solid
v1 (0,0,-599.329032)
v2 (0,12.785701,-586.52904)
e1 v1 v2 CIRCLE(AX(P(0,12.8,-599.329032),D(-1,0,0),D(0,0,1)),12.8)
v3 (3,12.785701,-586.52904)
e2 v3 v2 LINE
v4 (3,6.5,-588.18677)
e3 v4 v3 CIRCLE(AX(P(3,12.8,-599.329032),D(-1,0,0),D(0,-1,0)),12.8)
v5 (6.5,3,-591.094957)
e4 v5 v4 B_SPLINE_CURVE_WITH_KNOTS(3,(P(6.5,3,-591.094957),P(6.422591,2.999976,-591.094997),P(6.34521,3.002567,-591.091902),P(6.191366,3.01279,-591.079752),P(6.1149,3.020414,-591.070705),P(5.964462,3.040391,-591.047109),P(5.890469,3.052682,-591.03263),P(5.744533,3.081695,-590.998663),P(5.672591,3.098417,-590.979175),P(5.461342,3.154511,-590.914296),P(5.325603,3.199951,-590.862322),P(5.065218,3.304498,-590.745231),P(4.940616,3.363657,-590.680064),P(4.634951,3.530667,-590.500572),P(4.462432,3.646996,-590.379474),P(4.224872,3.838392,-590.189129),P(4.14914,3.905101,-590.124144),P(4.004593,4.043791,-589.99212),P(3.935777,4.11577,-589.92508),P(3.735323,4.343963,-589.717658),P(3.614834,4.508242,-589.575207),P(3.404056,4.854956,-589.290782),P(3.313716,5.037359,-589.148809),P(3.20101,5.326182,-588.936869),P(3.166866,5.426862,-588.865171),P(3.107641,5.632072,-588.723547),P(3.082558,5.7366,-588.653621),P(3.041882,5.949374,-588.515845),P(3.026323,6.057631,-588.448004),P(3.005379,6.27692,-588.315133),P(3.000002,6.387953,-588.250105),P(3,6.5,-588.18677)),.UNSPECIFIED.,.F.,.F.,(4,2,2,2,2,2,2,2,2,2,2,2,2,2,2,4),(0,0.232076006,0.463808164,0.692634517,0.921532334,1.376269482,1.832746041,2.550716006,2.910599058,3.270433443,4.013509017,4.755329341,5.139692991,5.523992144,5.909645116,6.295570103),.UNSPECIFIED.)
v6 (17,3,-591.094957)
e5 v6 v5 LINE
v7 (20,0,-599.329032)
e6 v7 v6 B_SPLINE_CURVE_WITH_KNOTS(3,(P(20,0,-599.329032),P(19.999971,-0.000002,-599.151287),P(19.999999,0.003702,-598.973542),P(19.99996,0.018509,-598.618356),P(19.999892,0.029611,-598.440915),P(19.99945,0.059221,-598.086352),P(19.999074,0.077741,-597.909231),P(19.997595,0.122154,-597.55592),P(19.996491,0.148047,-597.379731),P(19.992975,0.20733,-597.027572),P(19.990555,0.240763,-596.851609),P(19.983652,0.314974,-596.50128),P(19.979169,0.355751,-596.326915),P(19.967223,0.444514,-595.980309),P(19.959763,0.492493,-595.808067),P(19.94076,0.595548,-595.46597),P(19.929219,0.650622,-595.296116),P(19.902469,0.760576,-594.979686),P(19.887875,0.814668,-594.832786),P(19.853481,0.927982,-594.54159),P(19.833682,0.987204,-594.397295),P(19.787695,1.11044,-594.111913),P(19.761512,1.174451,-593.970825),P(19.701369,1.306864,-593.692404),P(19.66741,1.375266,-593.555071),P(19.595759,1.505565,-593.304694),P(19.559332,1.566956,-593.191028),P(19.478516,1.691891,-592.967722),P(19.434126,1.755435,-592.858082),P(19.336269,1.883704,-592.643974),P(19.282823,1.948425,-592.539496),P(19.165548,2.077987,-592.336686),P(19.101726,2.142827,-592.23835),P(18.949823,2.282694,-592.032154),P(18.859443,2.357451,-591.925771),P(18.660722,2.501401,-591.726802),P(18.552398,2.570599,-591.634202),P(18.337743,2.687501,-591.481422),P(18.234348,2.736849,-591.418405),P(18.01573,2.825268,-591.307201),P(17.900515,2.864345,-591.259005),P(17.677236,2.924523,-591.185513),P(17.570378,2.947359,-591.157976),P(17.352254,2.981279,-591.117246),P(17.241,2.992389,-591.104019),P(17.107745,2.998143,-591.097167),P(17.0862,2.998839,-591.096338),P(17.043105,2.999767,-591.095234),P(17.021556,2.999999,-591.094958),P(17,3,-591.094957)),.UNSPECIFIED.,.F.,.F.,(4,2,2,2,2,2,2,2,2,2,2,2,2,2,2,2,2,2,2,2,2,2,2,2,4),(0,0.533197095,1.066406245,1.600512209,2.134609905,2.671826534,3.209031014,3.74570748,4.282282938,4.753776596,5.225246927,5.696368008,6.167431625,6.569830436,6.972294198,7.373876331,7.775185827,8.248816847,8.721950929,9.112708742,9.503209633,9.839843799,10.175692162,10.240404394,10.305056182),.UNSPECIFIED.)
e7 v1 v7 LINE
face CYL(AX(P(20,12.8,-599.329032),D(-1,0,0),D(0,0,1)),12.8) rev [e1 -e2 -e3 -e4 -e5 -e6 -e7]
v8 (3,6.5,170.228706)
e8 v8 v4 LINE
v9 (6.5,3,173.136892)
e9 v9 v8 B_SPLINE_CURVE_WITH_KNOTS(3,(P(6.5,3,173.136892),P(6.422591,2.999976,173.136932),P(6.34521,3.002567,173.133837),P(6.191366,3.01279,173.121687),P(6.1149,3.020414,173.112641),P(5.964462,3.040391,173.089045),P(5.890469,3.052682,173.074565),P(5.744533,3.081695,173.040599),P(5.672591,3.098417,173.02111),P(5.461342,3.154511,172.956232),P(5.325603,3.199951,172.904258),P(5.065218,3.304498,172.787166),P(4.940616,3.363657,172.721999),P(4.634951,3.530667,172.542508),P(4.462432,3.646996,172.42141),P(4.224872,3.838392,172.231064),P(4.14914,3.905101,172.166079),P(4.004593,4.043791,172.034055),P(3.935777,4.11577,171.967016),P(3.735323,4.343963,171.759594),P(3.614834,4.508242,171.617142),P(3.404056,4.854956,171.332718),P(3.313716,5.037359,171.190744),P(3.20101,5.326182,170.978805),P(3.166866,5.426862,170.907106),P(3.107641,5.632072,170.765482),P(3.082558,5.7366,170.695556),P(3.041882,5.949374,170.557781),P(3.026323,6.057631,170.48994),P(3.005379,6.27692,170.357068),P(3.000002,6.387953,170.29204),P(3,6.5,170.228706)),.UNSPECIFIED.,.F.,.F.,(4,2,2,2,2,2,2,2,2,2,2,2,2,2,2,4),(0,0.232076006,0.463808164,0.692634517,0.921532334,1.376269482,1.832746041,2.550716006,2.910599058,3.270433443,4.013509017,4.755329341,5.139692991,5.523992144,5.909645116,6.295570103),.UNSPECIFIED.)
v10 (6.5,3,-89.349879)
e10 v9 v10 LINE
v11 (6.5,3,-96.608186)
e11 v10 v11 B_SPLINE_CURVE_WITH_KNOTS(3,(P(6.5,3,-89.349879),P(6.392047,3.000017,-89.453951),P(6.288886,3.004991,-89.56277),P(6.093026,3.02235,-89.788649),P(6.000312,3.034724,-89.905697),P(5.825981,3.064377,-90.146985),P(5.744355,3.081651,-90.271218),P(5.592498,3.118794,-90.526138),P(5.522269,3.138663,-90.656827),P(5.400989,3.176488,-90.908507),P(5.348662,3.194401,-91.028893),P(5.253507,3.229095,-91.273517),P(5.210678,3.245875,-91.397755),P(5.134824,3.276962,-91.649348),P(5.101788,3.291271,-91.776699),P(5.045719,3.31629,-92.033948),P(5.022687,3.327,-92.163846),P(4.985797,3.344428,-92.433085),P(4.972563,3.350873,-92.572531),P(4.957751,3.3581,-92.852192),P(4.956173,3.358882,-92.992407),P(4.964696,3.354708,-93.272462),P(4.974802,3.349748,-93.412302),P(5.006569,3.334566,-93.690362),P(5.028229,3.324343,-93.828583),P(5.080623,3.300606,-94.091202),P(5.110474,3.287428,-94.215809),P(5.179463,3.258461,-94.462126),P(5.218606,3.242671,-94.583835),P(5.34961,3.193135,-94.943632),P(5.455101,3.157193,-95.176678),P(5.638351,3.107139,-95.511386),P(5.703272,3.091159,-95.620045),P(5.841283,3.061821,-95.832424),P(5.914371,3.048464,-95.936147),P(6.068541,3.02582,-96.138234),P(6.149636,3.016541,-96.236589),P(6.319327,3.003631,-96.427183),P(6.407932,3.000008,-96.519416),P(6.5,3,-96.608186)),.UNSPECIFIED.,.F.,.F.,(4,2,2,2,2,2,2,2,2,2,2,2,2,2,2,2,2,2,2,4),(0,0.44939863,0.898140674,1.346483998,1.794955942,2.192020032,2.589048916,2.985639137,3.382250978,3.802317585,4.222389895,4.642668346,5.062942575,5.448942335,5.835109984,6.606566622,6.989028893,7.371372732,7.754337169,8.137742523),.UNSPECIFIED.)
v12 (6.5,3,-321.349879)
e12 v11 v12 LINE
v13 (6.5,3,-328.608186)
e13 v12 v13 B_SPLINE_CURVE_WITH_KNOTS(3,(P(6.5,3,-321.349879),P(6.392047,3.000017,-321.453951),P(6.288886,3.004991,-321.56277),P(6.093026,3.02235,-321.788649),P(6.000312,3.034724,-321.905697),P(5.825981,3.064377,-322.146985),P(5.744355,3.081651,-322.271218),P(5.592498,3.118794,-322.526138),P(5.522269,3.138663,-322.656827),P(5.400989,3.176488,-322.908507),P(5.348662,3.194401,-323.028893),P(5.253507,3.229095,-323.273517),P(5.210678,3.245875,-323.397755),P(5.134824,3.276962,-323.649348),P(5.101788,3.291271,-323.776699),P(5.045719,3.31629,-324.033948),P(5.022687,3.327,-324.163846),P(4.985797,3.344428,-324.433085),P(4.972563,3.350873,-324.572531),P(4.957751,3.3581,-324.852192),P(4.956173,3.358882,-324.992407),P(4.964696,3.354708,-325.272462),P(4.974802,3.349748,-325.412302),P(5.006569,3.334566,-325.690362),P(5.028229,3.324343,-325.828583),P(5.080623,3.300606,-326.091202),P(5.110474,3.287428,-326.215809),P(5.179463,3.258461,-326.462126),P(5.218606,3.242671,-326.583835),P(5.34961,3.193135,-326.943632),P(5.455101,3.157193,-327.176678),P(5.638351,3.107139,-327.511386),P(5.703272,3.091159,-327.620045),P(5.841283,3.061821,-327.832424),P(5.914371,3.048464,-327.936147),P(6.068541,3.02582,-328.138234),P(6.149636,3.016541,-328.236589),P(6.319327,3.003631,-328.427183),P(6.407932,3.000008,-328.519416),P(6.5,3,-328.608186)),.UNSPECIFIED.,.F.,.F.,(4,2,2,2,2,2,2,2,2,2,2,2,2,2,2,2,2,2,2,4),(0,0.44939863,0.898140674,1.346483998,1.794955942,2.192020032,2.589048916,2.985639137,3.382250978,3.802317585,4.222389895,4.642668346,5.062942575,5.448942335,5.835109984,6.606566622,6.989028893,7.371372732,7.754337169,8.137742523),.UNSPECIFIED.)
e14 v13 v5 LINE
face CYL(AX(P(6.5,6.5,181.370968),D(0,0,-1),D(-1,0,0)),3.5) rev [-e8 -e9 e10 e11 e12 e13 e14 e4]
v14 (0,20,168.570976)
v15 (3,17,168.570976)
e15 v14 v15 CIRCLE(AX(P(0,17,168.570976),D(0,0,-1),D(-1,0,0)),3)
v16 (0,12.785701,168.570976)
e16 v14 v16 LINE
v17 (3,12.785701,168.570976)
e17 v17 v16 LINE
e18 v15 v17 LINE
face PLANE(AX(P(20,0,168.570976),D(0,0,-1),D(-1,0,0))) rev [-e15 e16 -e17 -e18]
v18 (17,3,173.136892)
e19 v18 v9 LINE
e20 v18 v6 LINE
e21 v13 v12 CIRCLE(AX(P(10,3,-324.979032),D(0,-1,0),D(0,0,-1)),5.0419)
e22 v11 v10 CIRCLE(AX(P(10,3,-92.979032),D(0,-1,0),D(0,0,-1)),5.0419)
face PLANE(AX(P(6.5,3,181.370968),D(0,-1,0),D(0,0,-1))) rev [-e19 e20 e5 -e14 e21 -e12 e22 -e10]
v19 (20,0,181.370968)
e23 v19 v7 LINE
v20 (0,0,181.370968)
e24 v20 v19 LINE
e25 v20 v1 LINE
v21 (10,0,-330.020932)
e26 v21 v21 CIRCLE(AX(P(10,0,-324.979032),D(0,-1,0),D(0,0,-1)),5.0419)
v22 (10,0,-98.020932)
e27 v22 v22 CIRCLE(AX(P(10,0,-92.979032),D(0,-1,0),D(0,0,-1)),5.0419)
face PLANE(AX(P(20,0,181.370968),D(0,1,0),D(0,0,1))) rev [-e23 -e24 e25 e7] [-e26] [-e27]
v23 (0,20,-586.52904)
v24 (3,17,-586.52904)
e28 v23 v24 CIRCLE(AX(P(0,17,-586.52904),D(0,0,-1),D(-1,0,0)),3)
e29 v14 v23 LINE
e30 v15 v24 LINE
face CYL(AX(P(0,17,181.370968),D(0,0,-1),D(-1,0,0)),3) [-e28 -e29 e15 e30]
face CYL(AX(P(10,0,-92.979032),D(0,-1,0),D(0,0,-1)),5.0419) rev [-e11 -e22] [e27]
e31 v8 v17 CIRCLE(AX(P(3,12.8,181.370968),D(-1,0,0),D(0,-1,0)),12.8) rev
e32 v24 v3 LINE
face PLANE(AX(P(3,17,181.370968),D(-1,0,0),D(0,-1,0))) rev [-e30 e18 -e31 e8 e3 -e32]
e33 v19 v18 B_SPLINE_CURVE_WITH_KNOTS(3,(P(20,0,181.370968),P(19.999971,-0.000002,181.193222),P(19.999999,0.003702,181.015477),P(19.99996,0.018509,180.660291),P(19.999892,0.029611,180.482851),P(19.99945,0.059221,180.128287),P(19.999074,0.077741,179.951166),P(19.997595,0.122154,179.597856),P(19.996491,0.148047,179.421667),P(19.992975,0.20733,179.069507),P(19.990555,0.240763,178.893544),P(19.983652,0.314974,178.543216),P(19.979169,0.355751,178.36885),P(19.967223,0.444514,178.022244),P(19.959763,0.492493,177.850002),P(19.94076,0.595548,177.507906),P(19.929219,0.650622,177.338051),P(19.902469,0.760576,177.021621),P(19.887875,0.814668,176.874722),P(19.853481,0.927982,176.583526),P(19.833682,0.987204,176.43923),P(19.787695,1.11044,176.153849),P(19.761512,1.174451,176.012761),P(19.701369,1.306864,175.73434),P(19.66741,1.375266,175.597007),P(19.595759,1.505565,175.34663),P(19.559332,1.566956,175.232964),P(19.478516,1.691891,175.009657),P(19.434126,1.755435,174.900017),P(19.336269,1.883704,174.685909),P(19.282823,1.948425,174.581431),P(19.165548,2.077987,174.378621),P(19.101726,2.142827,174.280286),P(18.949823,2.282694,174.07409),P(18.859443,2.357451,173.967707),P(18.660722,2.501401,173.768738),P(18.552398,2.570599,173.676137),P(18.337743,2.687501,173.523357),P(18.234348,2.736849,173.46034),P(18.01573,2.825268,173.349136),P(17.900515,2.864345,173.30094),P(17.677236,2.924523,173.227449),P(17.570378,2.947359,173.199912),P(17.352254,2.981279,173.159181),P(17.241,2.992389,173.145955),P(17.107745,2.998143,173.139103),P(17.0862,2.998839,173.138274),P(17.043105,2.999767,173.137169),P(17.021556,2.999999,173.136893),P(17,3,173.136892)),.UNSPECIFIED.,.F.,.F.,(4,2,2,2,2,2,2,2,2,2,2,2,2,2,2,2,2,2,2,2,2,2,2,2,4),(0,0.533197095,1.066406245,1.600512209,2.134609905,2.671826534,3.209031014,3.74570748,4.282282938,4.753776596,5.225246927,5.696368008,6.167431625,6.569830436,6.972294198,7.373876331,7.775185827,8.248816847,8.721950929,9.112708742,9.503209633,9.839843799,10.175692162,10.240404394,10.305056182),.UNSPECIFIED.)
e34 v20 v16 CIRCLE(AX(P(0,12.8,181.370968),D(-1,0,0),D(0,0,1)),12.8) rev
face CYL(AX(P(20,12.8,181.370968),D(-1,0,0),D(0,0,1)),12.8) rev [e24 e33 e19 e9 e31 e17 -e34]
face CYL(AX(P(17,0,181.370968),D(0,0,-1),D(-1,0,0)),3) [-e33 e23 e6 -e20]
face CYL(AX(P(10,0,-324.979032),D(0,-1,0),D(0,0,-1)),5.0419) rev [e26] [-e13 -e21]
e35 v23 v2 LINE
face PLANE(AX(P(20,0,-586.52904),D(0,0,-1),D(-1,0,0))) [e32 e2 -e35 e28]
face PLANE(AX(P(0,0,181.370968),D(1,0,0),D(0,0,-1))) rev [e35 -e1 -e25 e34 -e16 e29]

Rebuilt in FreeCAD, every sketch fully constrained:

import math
import FreeCAD as App
import Part
import Sketcher

V = App.Vector

doc = App.newDocument("Part")
params = doc.addObject("Spreadsheet::Sheet", "Params")
for row, (alias, value) in enumerate([
    ("sketch1_radius", "3 mm"),
    ("sketch1_radius2", "3.5 mm"),
    ("sketch1_width", "20 mm"),
    ("pad1_length", "780.7 mm"),
    ("sketch2_radius", "12.8 mm"),
    ("sketch2_width", "20 mm"),
    ("hole_diameter", "10.0838 mm"),
], start=1):
    params.set(f"A{row}", alias)
    params.set(f"B{row}", "=" + value)
    params.setAlias(f"B{row}", alias)

body = doc.addObject("PartDesign::Body", "Body")

# Sketch on XY plane
sketch1 = doc.addObject("Sketcher::SketchObject", "Sketch")
body.addObject(sketch1)
sketch1.AttachmentSupport = (doc.XY_Plane, [""])
sketch1.MapMode = "FlatFace"
sketch1.AttachmentOffset = App.Placement(V(0, 0, -599.329032), App.Rotation())
sketch1.addGeometry(Part.LineSegment(V(0, 20, 0), V(0, 0, 0)), False)
sketch1.addGeometry(Part.LineSegment(V(0, 0, 0), V(20, 0, 0)), False)
sketch1.addGeometry(Part.ArcOfCircle(Part.Circle(V(17, 0, 0), V(0, 0, 1), 3), math.radians(0), math.radians(90)), False)
sketch1.addGeometry(Part.LineSegment(V(17, 3, 0), V(6.5, 3, 0)), False)
sketch1.addGeometry(Part.ArcOfCircle(Part.Circle(V(6.5, 6.5, 0), V(0, 0, 1), 3.5), math.radians(-180), math.radians(-90)), False)
sketch1.addGeometry(Part.LineSegment(V(3, 6.5, 0), V(3, 17, 0)), False)
sketch1.addGeometry(Part.ArcOfCircle(Part.Circle(V(0, 17, 0), V(0, 0, 1), 3), math.radians(0), math.radians(90)), False)
sketch1.addConstraint(Sketcher.Constraint("Coincident", 0, 2, 1, 1))
sketch1.addConstraint(Sketcher.Constraint("Coincident", 1, 2, 2, 1))
sketch1.addConstraint(Sketcher.Constraint("Tangent", 2, 2, 3, 1))
sketch1.addConstraint(Sketcher.Constraint("Tangent", 3, 2, 4, 2))
sketch1.addConstraint(Sketcher.Constraint("Tangent", 4, 1, 5, 1))
sketch1.addConstraint(Sketcher.Constraint("Tangent", 5, 2, 6, 1))
sketch1.addConstraint(Sketcher.Constraint("Coincident", 6, 2, 0, 1))
sketch1.addConstraint(Sketcher.Constraint("Vertical", 0))
sketch1.addConstraint(Sketcher.Constraint("Horizontal", 1))
sketch1.addConstraint(Sketcher.Constraint("Horizontal", 3))
sketch1.addConstraint(Sketcher.Constraint("Vertical", 5))
sketch1.addConstraint(Sketcher.Constraint("Coincident", 0, 2, -1, 1))
sketch1.addConstraint(Sketcher.Constraint("Equal", 2, 6))
sketch1.addConstraint(Sketcher.Constraint("PointOnObject", 2, 3, -1))
sketch1.addConstraint(Sketcher.Constraint("PointOnObject", 6, 3, -2))
sketch1.addConstraint(Sketcher.Constraint("Equal", 1, 0))
sketch1.addConstraint(Sketcher.Constraint("Radius", 2, 3.0))
sketch1.addConstraint(Sketcher.Constraint("Radius", 4, 3.5))
sketch1.addConstraint(Sketcher.Constraint("DistanceX", 1, 1, 1, 2, 20.0))
sketch1.setExpression("Constraints[16]", "Params.sketch1_radius")
sketch1.setExpression("Constraints[17]", "Params.sketch1_radius2")
sketch1.setExpression("Constraints[18]", "Params.sketch1_width")
pad1 = doc.addObject("PartDesign::Pad", "Pad")
body.addObject(pad1)
pad1.Profile = sketch1
pad1.setExpression("Length", "Params.pad1_length")

# Sketch on YZ plane
sketch2 = doc.addObject("Sketcher::SketchObject", "Sketch001")
body.addObject(sketch2)
sketch2.AttachmentSupport = (doc.YZ_Plane, [""])
sketch2.MapMode = "FlatFace"
sketch2.addGeometry(Part.LineSegment(V(20, 181, 0), V(0, 181, 0)), False)
sketch2.addGeometry(Part.ArcOfCircle(Part.Circle(V(13, 181, 0), V(0, 0, 1), 13), math.radians(-180), math.radians(-90)), False)
sketch2.addGeometry(Part.LineSegment(V(13, 169, 0), V(20, 169, 0)), False)
sketch2.addGeometry(Part.LineSegment(V(20, 169, 0), V(20, 181, 0)), False)
sketch2.addGeometry(Part.ArcOfCircle(Part.Circle(V(13, -599, 0), V(0, 0, 1), 13), math.radians(90), math.radians(180)), False)
sketch2.addGeometry(Part.LineSegment(V(0, -599, 0), V(20, -599, 0)), False)
sketch2.addGeometry(Part.LineSegment(V(20, -599, 0), V(20, -587, 0)), False)
sketch2.addGeometry(Part.LineSegment(V(20, -587, 0), V(13, -587, 0)), False)
sketch2.addConstraint(Sketcher.Constraint("Coincident", 0, 2, 1, 1))
sketch2.addConstraint(Sketcher.Constraint("Coincident", 1, 2, 2, 1))
sketch2.addConstraint(Sketcher.Constraint("Coincident", 2, 2, 3, 1))
sketch2.addConstraint(Sketcher.Constraint("Coincident", 3, 2, 0, 1))
sketch2.addConstraint(Sketcher.Constraint("Coincident", 4, 2, 5, 1))
sketch2.addConstraint(Sketcher.Constraint("Coincident", 5, 2, 6, 1))
sketch2.addConstraint(Sketcher.Constraint("Coincident", 6, 2, 7, 1))
sketch2.addConstraint(Sketcher.Constraint("Coincident", 7, 2, 4, 1))
sketch2.addConstraint(Sketcher.Constraint("Horizontal", 0))
sketch2.addConstraint(Sketcher.Constraint("Horizontal", 2))
sketch2.addConstraint(Sketcher.Constraint("Vertical", 3))
sketch2.addConstraint(Sketcher.Constraint("Horizontal", 5))
sketch2.addConstraint(Sketcher.Constraint("Vertical", 6))
sketch2.addConstraint(Sketcher.Constraint("Horizontal", 7))
sketch2.addConstraint(Sketcher.Constraint("Equal", 1, 4))
sketch2.addConstraint(Sketcher.Constraint("PointOnObject", 0, 2, -2))
sketch2.addConstraint(Sketcher.Constraint("PointOnObject", 4, 2, -2))
sketch2.addConstraint(Sketcher.Constraint("Horizontal", 1, 3, 0, 2))
sketch2.addConstraint(Sketcher.Constraint("Vertical", 3, 2, 5, 2))
sketch2.addConstraint(Sketcher.Constraint("Vertical", 1, 2, 7, 2))
sketch2.addConstraint(Sketcher.Constraint("Equal", 3, 6))
sketch2.addConstraint(Sketcher.Constraint("Radius", 1, 12.8))
sketch2.addConstraint(Sketcher.Constraint("DistanceX", 0, 2, 0, 1, 20.0))
sketch2.addConstraint(Sketcher.Constraint("DistanceY", 4, 3, 1, 3, 780.7))
sketch2.addConstraint(Sketcher.Constraint("DistanceX", 2, 1, 2, 2, 7.214299))
sketch2.addConstraint(Sketcher.Constraint("DistanceY", 6, 2, -1, 1, 586.52904))
sketch2.setExpression("Constraints[21]", "Params.sketch2_radius")
sketch2.setExpression("Constraints[22]", "Params.sketch2_width")
pocket1 = doc.addObject("PartDesign::Pocket", "Pocket")
body.addObject(pocket1)
pocket1.Profile = sketch2
pocket1.Type = "ThroughAll"
pocket1.Reversed = True

# Sketch on XZ plane
sketch3 = doc.addObject("Sketcher::SketchObject", "Sketch002")
body.addObject(sketch3)
sketch3.AttachmentSupport = (doc.XZ_Plane, [""])
sketch3.MapMode = "FlatFace"
sketch3.addGeometry(Part.Circle(V(10, -93, 0), V(0, 0, 1), 5), False)
sketch3.addGeometry(Part.Circle(V(10, -325, 0), V(0, 0, 1), 5), False)
sketch3.addConstraint(Sketcher.Constraint("Equal", 0, 1))
sketch3.addConstraint(Sketcher.Constraint("Vertical", 0, 3, 1, 3))
sketch3.addConstraint(Sketcher.Constraint("DistanceX", -1, 1, 0, 3, 10.0))
sketch3.addConstraint(Sketcher.Constraint("DistanceY", 1, 3, 0, 3, 232.0))
sketch3.addConstraint(Sketcher.Constraint("Diameter", 0, 10.0838))
sketch3.addConstraint(Sketcher.Constraint("DistanceY", 0, 3, -1, 1, 92.979032))
doc.recompute()
hole = doc.addObject("PartDesign::Hole", "Hole")
body.addObject(hole)
hole.Profile = sketch3
hole.ThreadType = "None"
hole.setExpression("Diameter", "Params.hole_diameter")
hole.DepthType = "ThroughAll"

doc.recompute()
